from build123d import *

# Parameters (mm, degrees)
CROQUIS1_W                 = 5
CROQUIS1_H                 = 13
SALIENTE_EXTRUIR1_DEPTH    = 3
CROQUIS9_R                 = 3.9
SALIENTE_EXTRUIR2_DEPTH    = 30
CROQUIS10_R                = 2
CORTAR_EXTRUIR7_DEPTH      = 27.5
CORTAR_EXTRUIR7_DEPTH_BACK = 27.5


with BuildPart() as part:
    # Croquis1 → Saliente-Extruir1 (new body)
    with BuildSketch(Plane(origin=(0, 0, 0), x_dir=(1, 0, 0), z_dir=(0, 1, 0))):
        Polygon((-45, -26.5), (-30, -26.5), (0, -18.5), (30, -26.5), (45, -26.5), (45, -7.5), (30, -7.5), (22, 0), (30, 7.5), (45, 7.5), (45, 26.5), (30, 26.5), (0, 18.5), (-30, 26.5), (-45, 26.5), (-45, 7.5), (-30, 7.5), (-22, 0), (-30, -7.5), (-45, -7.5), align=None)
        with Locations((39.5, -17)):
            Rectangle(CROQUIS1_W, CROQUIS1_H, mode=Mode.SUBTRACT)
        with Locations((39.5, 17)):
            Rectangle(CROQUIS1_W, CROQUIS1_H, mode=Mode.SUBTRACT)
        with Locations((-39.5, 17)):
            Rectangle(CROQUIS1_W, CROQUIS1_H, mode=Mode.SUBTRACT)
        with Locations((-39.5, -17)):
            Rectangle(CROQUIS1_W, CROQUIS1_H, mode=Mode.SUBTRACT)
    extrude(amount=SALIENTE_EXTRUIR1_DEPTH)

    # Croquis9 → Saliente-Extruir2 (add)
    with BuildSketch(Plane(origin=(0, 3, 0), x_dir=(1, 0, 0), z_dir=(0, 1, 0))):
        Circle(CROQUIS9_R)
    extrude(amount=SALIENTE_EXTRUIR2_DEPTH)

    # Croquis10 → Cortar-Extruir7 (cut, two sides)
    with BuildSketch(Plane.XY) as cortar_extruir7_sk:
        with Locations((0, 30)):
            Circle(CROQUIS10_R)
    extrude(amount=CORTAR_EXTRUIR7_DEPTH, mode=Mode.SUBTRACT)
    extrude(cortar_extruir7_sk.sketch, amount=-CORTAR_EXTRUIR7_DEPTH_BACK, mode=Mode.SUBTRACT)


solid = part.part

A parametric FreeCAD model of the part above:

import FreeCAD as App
import Part
import Sketcher

V = App.Vector
Q = App.Units.Quantity

doc = App.newDocument("Part")
body = doc.addObject("PartDesign::Body", "Body")

sketch1 = body.newObject("Sketcher::SketchObject", "Sketch")
sketch1.AttachmentSupport = (doc.getObject("XZ_Plane"), [""])
sketch1.MapMode = "FlatFace"
sketch1.addGeometry([
    Part.LineSegment(V(-45, 26, 0), V(-30, 26, 0)),
    Part.LineSegment(V(-30, 26, 0), V(0, 18, 0)),
    Part.LineSegment(V(0, 18, 0), V(30, 26, 0)),
    Part.LineSegment(V(30, 26, 0), V(45, 26, 0)),
    Part.LineSegment(V(45, 26, 0), V(45, 8, 0)),
    Part.LineSegment(V(45, 8, 0), V(30, 8, 0)),
    Part.LineSegment(V(30, 8, 0), V(22, 0, 0)),
    Part.LineSegment(V(22, 0, 0), V(30, -8, 0)),
    Part.LineSegment(V(30, -8, 0), V(45, -8, 0)),
    Part.LineSegment(V(45, -8, 0), V(45, -26, 0)),
    Part.LineSegment(V(45, -26, 0), V(30, -26, 0)),
    Part.LineSegment(V(30, -26, 0), V(0, -18, 0)),
    Part.LineSegment(V(0, -18, 0), V(-30, -26, 0)),
    Part.LineSegment(V(-30, -26, 0), V(-45, -26, 0)),
    Part.LineSegment(V(-45, -26, 0), V(-45, -8, 0)),
    Part.LineSegment(V(-45, -8, 0), V(-30, -8, 0)),
    Part.LineSegment(V(-30, -8, 0), V(-22, 0, 0)),
    Part.LineSegment(V(-22, 0, 0), V(-30, 8, 0)),
    Part.LineSegment(V(-30, 8, 0), V(-45, 8, 0)),
    Part.LineSegment(V(-45, 8, 0), V(-45, 26, 0)),
    Part.LineSegment(V(-37, 24, 0), V(-42, 24, 0)),
    Part.LineSegment(V(-42, 24, 0), V(-42, 10, 0)),
    Part.LineSegment(V(-42, 10, 0), V(-37, 10, 0)),
    Part.LineSegment(V(-37, 10, 0), V(-37, 24, 0)),
    Part.LineSegment(V(42, 24, 0), V(37, 24, 0)),
    Part.LineSegment(V(37, 24, 0), V(37, 10, 0)),
    Part.LineSegment(V(37, 10, 0), V(42, 10, 0)),
    Part.LineSegment(V(42, 10, 0), V(42, 24, 0)),
    Part.LineSegment(V(-37, -10, 0), V(-42, -10, 0)),
    Part.LineSegment(V(-42, -10, 0), V(-42, -24, 0)),
    Part.LineSegment(V(-42, -24, 0), V(-37, -24, 0)),
    Part.LineSegment(V(-37, -24, 0), V(-37, -10, 0)),
    Part.LineSegment(V(42, -10, 0), V(37, -10, 0)),
    Part.LineSegment(V(37, -10, 0), V(37, -24, 0)),
    Part.LineSegment(V(37, -24, 0), V(42, -24, 0)),
    Part.LineSegment(V(42, -24, 0), V(42, -10, 0)),
], False)
sketch1.addConstraint([
    Sketcher.Constraint("Coincident", 0, 2, 1, 1),
    Sketcher.Constraint("Coincident", 1, 2, 2, 1),
    Sketcher.Constraint("Coincident", 2, 2, 3, 1),
    Sketcher.Constraint("Coincident", 3, 2, 4, 1),
    Sketcher.Constraint("Coincident", 4, 2, 5, 1),
    Sketcher.Constraint("Coincident", 5, 2, 6, 1),
    Sketcher.Constraint("Coincident", 6, 2, 7, 1),
    Sketcher.Constraint("Coincident", 7, 2, 8, 1),
    Sketcher.Constraint("Coincident", 8, 2, 9, 1),
    Sketcher.Constraint("Coincident", 9, 2, 10, 1),
    Sketcher.Constraint("Coincident", 10, 2, 11, 1),
    Sketcher.Constraint("Coincident", 11, 2, 12, 1),
    Sketcher.Constraint("Coincident", 12, 2, 13, 1),
    Sketcher.Constraint("Coincident", 13, 2, 14, 1),
    Sketcher.Constraint("Coincident", 14, 2, 15, 1),
    Sketcher.Constraint("Coincident", 15, 2, 16, 1),
    Sketcher.Constraint("Coincident", 16, 2, 17, 1),
    Sketcher.Constraint("Coincident", 17, 2, 18, 1),
    Sketcher.Constraint("Coincident", 18, 2, 19, 1),
    Sketcher.Constraint("Coincident", 19, 2, 0, 1),
    Sketcher.Constraint("Coincident", 20, 2, 21, 1),
    Sketcher.Constraint("Coincident", 21, 2, 22, 1),
    Sketcher.Constraint("Coincident", 22, 2, 23, 1),
    Sketcher.Constraint("Coincident", 23, 2, 20, 1),
    Sketcher.Constraint("Coincident", 24, 2, 25, 1),
    Sketcher.Constraint("Coincident", 25, 2, 26, 1),
    Sketcher.Constraint("Coincident", 26, 2, 27, 1),
    Sketcher.Constraint("Coincident", 27, 2, 24, 1),
    Sketcher.Constraint("Coincident", 28, 2, 29, 1),
    Sketcher.Constraint("Coincident", 29, 2, 30, 1),
    Sketcher.Constraint("Coincident", 30, 2, 31, 1),
    Sketcher.Constraint("Coincident", 31, 2, 28, 1),
    Sketcher.Constraint("Coincident", 32, 2, 33, 1),
    Sketcher.Constraint("Coincident", 33, 2, 34, 1),
    Sketcher.Constraint("Coincident", 34, 2, 35, 1),
    Sketcher.Constraint("Coincident", 35, 2, 32, 1),
    Sketcher.Constraint("Horizontal", 0),
    Sketcher.Constraint("Horizontal", 3),
    Sketcher.Constraint("Vertical", 4),
    Sketcher.Constraint("Horizontal", 5),
    Sketcher.Constraint("Horizontal", 8),
    Sketcher.Constraint("Vertical", 9),
    Sketcher.Constraint("Horizontal", 10),
    Sketcher.Constraint("Horizontal", 13),
    Sketcher.Constraint("Vertical", 14),
    Sketcher.Constraint("Horizontal", 15),
    Sketcher.Constraint("Horizontal", 18),
    Sketcher.Constraint("Vertical", 19),
    Sketcher.Constraint("Horizontal", 20),
    Sketcher.Constraint("Vertical", 21),
    Sketcher.Constraint("Horizontal", 22),
    Sketcher.Constraint("Vertical", 23),
    Sketcher.Constraint("Horizontal", 24),
    Sketcher.Constraint("Vertical", 25),
    Sketcher.Constraint("Horizontal", 26),
    Sketcher.Constraint("Vertical", 27),
    Sketcher.Constraint("Horizontal", 28),
    Sketcher.Constraint("Vertical", 29),
    Sketcher.Constraint("Horizontal", 30),
    Sketcher.Constraint("Vertical", 31),
    Sketcher.Constraint("Horizontal", 32),
    Sketcher.Constraint("Vertical", 33),
    Sketcher.Constraint("Horizontal", 34),
    Sketcher.Constraint("Vertical", 35),
    Sketcher.Constraint("Symmetric", 0, 2, 10, 2, -1, 1),
    Sketcher.Constraint("Symmetric", 1, 2, 11, 2, -1, 1),
    Sketcher.Constraint("Symmetric", 2, 2, 12, 2, -1, 1),
    Sketcher.Constraint("Symmetric", 4, 2, 14, 2, -1, 1),
    Sketcher.Constraint("Symmetric", 6, 2, 16, 2, -1, 1),
    Sketcher.Constraint("Symmetric", 7, 2, 17, 2, -1, 1),
    Sketcher.Constraint("Symmetric", 26, 2, 28, 2, -1, 1),
    Sketcher.Constraint("Symmetric", 24, 2, 30, 2, -1, 1),
    Sketcher.Constraint("Symmetric", 22, 2, 32, 2, -1, 1),
    Sketcher.Constraint("Symmetric", 20, 2, 34, 2, -1, 1),
    Sketcher.Constraint("Symmetric", 0, 2, 2, 2, -2),
    Sketcher.Constraint("Symmetric", 8, 2, 14, 2, -2),
    Sketcher.Constraint("Symmetric", 23, 2, 24, 2, -2),
    Sketcher.Constraint("Symmetric", 21, 2, 26, 2, -2),
    Sketcher.Constraint("PointOnObject", 1, 2, -2),
    Sketcher.Constraint("PointOnObject", 6, 2, -1),
    Sketcher.Constraint("Parallel", 6, 16),
    Sketcher.Constraint("Vertical", 2, 2, 5, 2),
    Sketcher.Constraint("Vertical", 5, 2, 7, 2),
    Sketcher.Constraint("Vertical", 14, 2, 18, 2),
    Sketcher.Constraint("DistanceX", 0, 1, 0, 2, Q("15 mm")),
    Sketcher.Constraint("DistanceX", 20, 2, 20, 1, Q("5 mm")),
    Sketcher.Constraint("DistanceY", 4, 2, 4, 1, Q("19 mm")),
    Sketcher.Constraint("DistanceY", 21, 2, 21, 1, Q("13 mm")),
    Sketcher.Constraint("DistanceX", 0, 2, -1, 1, Q("30 mm")),
    Sketcher.Constraint("DistanceX", -1, 1, 6, 2, Q("22 mm")),
    Sketcher.Constraint("DistanceX", 20, 2, -1, 1, Q("42 mm")),
    Sketcher.Constraint("DistanceY", 1, 2, 0, 2, Q("8 mm")),
    Sketcher.Constraint("DistanceY", 7, 2, 5, 2, Q("15 mm")),
    Sketcher.Constraint("DistanceY", 20, 2, 19, 2, Q("3 mm")),
])
pad1 = body.newObject("PartDesign::Pad", "Pad")
pad1.Profile = sketch1
pad1.Length = 3
pad1.Reversed = True

sketch2 = body.newObject("Sketcher::SketchObject", "Sketch001")
sketch2.AttachmentSupport = (doc.getObject("XZ_Plane"), [""])
sketch2.MapMode = "FlatFace"
sketch2.AttachmentOffset = App.Placement(V(0, 0, -3), App.Rotation())
sketch2.addGeometry(Part.Circle(V(0, 0, 0), V(0, 0, 1), 3.9), False)
sketch2.addConstraint([
    Sketcher.Constraint("Coincident", 0, 3, -1, 1),
    Sketcher.Constraint("Diameter", 0, Q("7.8 mm")),
])
pad2 = body.newObject("PartDesign::Pad", "Pad001")
pad2.Profile = sketch2
pad2.Length = 30
pad2.Reversed = True

sketch3 = body.newObject("Sketcher::SketchObject", "Sketch002")
sketch3.AttachmentSupport = (doc.getObject("XY_Plane"), [""])
sketch3.MapMode = "FlatFace"
sketch3.addGeometry(Part.Circle(V(0, 30, 0), V(0, 0, 1), 2), False)
sketch3.addConstraint([
    Sketcher.Constraint("PointOnObject", 0, 3, -2),
    Sketcher.Constraint("Diameter", 0, Q("4 mm")),
    Sketcher.Constraint("DistanceY", -1, 1, 0, 3, Q("30 mm")),
])
pocket1 = body.newObject("PartDesign::Pocket", "Pocket")
pocket1.Profile = sketch3
pocket1.Type = "ThroughAll"
pocket1.Midplane = True

doc.recompute()
